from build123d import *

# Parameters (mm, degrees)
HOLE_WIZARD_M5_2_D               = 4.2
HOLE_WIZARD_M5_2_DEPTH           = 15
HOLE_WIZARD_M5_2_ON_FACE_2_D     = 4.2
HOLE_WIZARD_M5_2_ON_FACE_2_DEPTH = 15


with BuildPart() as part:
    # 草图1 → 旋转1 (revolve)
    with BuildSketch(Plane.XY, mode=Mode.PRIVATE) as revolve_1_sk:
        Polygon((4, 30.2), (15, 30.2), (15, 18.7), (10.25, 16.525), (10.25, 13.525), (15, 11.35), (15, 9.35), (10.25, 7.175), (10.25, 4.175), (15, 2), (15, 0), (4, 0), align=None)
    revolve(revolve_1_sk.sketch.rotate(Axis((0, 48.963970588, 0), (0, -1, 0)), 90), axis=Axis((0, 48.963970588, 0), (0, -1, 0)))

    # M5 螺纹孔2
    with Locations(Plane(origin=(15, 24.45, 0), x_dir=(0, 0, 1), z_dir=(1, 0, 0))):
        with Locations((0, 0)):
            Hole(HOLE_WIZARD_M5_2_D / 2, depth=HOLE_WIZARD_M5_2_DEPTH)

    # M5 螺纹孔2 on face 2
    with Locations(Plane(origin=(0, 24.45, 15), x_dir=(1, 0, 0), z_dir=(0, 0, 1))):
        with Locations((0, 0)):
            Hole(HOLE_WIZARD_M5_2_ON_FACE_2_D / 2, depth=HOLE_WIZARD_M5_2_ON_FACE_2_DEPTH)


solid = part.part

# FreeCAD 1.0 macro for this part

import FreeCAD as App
import Part
import Sketcher
from FreeCAD import Vector
Q = App.Units.Quantity

doc = App.newDocument("Part")
body = doc.addObject("PartDesign::Body", "Body")

# Sketch on XY plane
sketch1 = doc.addObject("Sketcher::SketchObject", "Sketch")
body.addObject(sketch1)
sketch1.AttachmentSupport = (doc.XY_Plane, [""])
sketch1.MapMode = "FlatFace"
sketch1.addGeometry([
    Part.LineSegment(Vector(15, 30.2, 0), Vector(4, 30.2, 0)),  # 0
    Part.LineSegment(Vector(4, 30.2, 0), Vector(4, 0, 0)),  # 1
    Part.LineSegment(Vector(4, 0, 0), Vector(15, 0, 0)),  # 2
    Part.LineSegment(Vector(15, 0, 0), Vector(15, 2, 0)),  # 3
    Part.LineSegment(Vector(15, 2, 0), Vector(10.2, 4.2, 0)),  # 4
    Part.LineSegment(Vector(10.2, 4.2, 0), Vector(10.2, 7.2, 0)),  # 5
    Part.LineSegment(Vector(10.2, 7.2, 0), Vector(15, 9.3, 0)),  # 6
    Part.LineSegment(Vector(15, 9.3, 0), Vector(15, 11.3, 0)),  # 7
    Part.LineSegment(Vector(15, 11.3, 0), Vector(10.2, 13.5, 0)),  # 8
    Part.LineSegment(Vector(10.2, 13.5, 0), Vector(10.2, 16.5, 0)),  # 9
    Part.LineSegment(Vector(10.2, 16.5, 0), Vector(15, 18.7, 0)),  # 10
    Part.LineSegment(Vector(15, 18.7, 0), Vector(15, 30.2, 0)),  # 11
], False)
sketch1.addConstraint([
    Sketcher.Constraint("Coincident", 0, 2, 1, 1),
    Sketcher.Constraint("Coincident", 1, 2, 2, 1),
    Sketcher.Constraint("Coincident", 2, 2, 3, 1),
    Sketcher.Constraint("Coincident", 3, 2, 4, 1),
    Sketcher.Constraint("Coincident", 4, 2, 5, 1),
    Sketcher.Constraint("Coincident", 5, 2, 6, 1),
    Sketcher.Constraint("Coincident", 6, 2, 7, 1),
    Sketcher.Constraint("Coincident", 7, 2, 8, 1),
    Sketcher.Constraint("Coincident", 8, 2, 9, 1),
    Sketcher.Constraint("Coincident", 9, 2, 10, 1),
    Sketcher.Constraint("Coincident", 10, 2, 11, 1),
    Sketcher.Constraint("Coincident", 11, 2, 0, 1),
    Sketcher.Constraint("Horizontal", 0),
    Sketcher.Constraint("Vertical", 1),
    Sketcher.Constraint("Horizontal", 2),
    Sketcher.Constraint("Vertical", 3),
    Sketcher.Constraint("Vertical", 5),
    Sketcher.Constraint("Vertical", 7),
    Sketcher.Constraint("Vertical", 9),
    Sketcher.Constraint("Vertical", 11),
    Sketcher.Constraint("PointOnObject", 1, 2, -1),
    Sketcher.Constraint("Parallel", 4, 8),
    Sketcher.Constraint("Parallel", 6, 10),
    Sketcher.Constraint("Vertical", 3, 2, 6, 2),
    Sketcher.Constraint("Vertical", 5, 2, 8, 2),
    Sketcher.Constraint("Vertical", 7, 2, 10, 2),
    Sketcher.Constraint("Equal", 3, 7),
    Sketcher.Constraint("Equal", 5, 9),
    Sketcher.Constraint("Equal", 4, 6),
    Sketcher.Constraint("DistanceX", 0, 2, 0, 1, Q("11 mm")),
    Sketcher.Constraint("DistanceY", 3, 1, 3, 2, Q("2 mm")),
    Sketcher.Constraint("DistanceY", 5, 1, 5, 2, Q("3 mm")),
    Sketcher.Constraint("DistanceY", 1, 2, 1, 1, Q("30.2 mm")),
    Sketcher.Constraint("DistanceY", 11, 1, 11, 2, Q("11.5 mm")),
    Sketcher.Constraint("DistanceX", -1, 1, 0, 2, Q("4 mm")),
    Sketcher.Constraint("DistanceX", -1, 1, 4, 2, Q("10.25 mm")),
])
revolution = doc.addObject("PartDesign::Revolution", "Revolution")
body.addObject(revolution)
revolution.Profile = sketch1
revolution.ReferenceAxis = (sketch1, ["V_Axis"])
revolution.Angle = 360

# Sketch on YZ plane
sketch2 = doc.addObject("Sketcher::SketchObject", "Sketch001")
body.addObject(sketch2)
sketch2.AttachmentSupport = (doc.YZ_Plane, [""])
sketch2.MapMode = "FlatFace"
sketch2.AttachmentOffset = App.Placement(Vector(0, 0, 15), App.Rotation())
sketch2.addGeometry(Part.Circle(Vector(24.4, 0, 0), Vector(0, 0, 1), 2.1), False)
sketch2.addConstraint([
    Sketcher.Constraint("PointOnObject", 0, 3, -1),
    Sketcher.Constraint("Diameter", 0, Q("4.2 mm")),
    Sketcher.Constraint("DistanceX", -1, 1, 0, 3, Q("24.45 mm")),
])
doc.recompute()
hole = doc.addObject("PartDesign::Hole", "Hole")
body.addObject(hole)
hole.Profile = sketch2
hole.ThreadType = "None"
hole.Diameter = 4.2
hole.DepthType = "Dimension"
hole.Depth = 15
hole.DrillPoint = "Flat"

# Sketch on XY plane
sketch3 = doc.addObject("Sketcher::SketchObject", "Sketch002")
body.addObject(sketch3)
sketch3.AttachmentSupport = (doc.XY_Plane, [""])
sketch3.MapMode = "FlatFace"
sketch3.AttachmentOffset = App.Placement(Vector(0, 0, 15), App.Rotation())
sketch3.addGeometry(Part.Circle(Vector(0, 24.4, 0), Vector(0, 0, 1), 2.1), False)
sketch3.addConstraint([
    Sketcher.Constraint("PointOnObject", 0, 3, -2),
    Sketcher.Constraint("Diameter", 0, Q("4.2 mm")),
    Sketcher.Constraint("DistanceY", -1, 1, 0, 3, Q("24.45 mm")),
])
doc.recompute()
hole2 = doc.addObject("PartDesign::Hole", "Hole001")
body.addObject(hole2)
hole2.Profile = sketch3
hole2.ThreadType = "None"
hole2.Diameter = 4.2
hole2.DepthType = "Dimension"
hole2.Depth = 15
hole2.DrillPoint = "Flat"

doc.recompute()
